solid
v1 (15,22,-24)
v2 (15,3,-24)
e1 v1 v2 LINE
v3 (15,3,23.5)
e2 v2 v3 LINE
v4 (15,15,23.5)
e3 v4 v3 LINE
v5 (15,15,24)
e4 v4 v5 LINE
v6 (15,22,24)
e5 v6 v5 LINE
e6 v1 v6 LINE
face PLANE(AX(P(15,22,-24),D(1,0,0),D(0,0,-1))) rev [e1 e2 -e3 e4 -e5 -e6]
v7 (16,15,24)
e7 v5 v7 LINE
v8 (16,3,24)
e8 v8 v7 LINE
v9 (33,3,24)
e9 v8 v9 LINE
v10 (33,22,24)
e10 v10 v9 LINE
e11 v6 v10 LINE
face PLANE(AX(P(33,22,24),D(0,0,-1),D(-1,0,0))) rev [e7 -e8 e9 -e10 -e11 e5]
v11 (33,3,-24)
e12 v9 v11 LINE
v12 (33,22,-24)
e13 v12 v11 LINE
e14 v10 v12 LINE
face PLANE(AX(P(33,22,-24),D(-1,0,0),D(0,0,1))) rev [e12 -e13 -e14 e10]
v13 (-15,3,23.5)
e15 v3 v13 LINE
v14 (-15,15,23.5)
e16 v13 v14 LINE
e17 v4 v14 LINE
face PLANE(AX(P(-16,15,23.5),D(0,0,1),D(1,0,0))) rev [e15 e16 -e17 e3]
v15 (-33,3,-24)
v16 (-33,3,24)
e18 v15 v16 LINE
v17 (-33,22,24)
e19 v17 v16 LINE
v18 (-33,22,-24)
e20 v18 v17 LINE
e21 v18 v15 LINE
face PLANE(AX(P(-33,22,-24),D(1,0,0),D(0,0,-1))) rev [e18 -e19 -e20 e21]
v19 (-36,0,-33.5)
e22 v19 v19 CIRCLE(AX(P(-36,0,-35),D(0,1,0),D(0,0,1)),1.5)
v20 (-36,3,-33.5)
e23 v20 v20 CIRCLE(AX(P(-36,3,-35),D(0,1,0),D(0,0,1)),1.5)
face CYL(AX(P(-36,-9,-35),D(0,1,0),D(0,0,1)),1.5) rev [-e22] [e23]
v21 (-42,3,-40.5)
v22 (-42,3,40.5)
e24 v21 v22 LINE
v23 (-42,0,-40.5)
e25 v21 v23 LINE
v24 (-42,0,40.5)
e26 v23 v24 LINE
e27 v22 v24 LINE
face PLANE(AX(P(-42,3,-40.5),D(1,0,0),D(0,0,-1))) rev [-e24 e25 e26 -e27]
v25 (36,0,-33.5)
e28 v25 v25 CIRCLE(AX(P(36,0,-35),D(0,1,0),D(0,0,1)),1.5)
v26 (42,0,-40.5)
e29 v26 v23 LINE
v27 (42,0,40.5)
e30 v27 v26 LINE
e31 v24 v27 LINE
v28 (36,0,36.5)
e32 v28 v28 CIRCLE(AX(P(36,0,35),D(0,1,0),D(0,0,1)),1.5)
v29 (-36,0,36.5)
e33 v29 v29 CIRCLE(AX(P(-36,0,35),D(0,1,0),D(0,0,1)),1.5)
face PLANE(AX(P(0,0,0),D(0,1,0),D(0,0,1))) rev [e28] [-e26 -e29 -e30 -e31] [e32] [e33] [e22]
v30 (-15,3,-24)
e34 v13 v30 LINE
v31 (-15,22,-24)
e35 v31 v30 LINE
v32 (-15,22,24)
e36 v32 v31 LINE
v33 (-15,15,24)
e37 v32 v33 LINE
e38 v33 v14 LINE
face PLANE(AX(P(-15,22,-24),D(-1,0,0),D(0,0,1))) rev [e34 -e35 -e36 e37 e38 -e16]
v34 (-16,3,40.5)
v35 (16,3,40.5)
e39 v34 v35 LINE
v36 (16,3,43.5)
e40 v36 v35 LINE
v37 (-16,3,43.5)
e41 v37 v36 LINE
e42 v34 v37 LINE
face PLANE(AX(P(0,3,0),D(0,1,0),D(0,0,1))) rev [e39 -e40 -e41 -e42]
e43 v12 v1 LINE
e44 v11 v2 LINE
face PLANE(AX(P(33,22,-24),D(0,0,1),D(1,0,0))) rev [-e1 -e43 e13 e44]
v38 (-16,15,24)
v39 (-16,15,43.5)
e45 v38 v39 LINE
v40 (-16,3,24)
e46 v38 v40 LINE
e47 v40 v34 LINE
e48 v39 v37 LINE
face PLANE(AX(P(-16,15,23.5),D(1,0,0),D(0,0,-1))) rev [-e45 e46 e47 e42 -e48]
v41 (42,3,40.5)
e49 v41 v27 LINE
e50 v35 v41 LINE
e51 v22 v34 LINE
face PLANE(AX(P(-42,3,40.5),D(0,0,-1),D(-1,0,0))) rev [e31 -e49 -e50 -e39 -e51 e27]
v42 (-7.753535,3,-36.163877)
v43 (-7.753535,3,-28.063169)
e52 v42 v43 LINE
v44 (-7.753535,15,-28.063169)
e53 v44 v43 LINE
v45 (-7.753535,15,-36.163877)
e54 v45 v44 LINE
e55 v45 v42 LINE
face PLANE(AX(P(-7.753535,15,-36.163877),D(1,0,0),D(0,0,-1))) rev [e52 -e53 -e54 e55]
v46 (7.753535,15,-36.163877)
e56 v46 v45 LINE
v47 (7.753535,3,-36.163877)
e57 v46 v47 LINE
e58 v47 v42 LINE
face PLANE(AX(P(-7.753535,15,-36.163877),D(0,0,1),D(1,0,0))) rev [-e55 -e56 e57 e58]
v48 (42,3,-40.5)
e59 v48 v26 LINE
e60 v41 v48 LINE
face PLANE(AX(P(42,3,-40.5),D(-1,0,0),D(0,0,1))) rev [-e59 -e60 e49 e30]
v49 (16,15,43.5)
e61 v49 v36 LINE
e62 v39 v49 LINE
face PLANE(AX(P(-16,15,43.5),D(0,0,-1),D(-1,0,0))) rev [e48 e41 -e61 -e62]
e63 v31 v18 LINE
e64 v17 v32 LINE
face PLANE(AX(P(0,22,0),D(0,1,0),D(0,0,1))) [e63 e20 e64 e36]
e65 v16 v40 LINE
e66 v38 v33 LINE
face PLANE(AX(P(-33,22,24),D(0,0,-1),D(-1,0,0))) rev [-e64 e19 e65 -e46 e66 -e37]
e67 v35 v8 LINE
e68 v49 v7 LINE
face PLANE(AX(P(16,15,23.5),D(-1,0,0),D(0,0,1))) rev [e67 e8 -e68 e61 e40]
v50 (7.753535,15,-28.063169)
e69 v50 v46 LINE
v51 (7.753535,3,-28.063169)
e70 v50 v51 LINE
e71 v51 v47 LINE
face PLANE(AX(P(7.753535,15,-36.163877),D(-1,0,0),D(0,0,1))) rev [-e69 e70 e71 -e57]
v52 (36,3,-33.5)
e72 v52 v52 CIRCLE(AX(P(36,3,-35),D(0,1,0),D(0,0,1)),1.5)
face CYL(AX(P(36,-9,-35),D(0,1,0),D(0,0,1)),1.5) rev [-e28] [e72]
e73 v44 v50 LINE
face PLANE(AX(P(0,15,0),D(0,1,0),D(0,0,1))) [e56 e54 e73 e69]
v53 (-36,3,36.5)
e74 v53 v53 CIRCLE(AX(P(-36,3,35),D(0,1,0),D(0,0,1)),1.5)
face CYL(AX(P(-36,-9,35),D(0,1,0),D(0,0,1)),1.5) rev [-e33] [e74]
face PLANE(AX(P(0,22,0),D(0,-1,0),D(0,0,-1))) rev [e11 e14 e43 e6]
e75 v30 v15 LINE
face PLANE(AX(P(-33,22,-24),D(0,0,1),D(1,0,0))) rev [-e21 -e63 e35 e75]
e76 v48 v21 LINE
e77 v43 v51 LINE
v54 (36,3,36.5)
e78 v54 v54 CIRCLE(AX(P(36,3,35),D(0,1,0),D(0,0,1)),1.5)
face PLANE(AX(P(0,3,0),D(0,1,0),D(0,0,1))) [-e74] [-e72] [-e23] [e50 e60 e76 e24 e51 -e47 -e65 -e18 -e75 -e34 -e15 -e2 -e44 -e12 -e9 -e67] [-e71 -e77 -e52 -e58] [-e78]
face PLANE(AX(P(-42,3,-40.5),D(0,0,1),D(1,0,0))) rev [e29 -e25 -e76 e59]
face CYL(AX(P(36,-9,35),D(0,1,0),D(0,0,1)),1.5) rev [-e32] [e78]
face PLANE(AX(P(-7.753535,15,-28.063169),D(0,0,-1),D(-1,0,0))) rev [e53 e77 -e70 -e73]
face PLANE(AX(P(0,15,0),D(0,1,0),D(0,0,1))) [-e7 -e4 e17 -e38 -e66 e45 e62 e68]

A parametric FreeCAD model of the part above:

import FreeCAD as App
import Part
import Sketcher
Q = App.Units.Quantity

doc = App.newDocument("Part")
body = doc.addObject("PartDesign::Body", "Body")

sketch1 = body.newObject("Sketcher::SketchObject", "Sketch")
sketch1.AttachmentSupport = (doc.getObject("XZ_Plane"), [""])
sketch1.MapMode = "FlatFace"
sketch1.addGeometry([
    Part.LineSegment(App.Vector(-42, -40.5, 0), App.Vector(-42, 40.5, 0)),
    Part.LineSegment(App.Vector(-42, 40.5, 0), App.Vector(42, 40.5, 0)),
    Part.LineSegment(App.Vector(42, 40.5, 0), App.Vector(42, -40.5, 0)),
    Part.LineSegment(App.Vector(42, -40.5, 0), App.Vector(-42, -40.5, 0)),
], False)
sketch1.addConstraint([
    Sketcher.Constraint("Coincident", 0, 2, 1, 1),
    Sketcher.Constraint("Coincident", 1, 2, 2, 1),
    Sketcher.Constraint("Coincident", 2, 2, 3, 1),
    Sketcher.Constraint("Coincident", 3, 2, 0, 1),
    Sketcher.Constraint("Vertical", 0),
    Sketcher.Constraint("Horizontal", 1),
    Sketcher.Constraint("Vertical", 2),
    Sketcher.Constraint("Horizontal", 3),
    Sketcher.Constraint("Symmetric", 0, 2, 2, 2, -1, 1),
    Sketcher.Constraint("DistanceX", 1, 1, 1, 2, Q("84 mm")),
    Sketcher.Constraint("DistanceY", 0, 1, 0, 2, Q("81 mm")),
])
pad1 = body.newObject("PartDesign::Pad", "Pad")
pad1.Profile = sketch1
pad1.Length = 3
pad1.Reversed = True

sketch2 = body.newObject("Sketcher::SketchObject", "Sketch001")
sketch2.AttachmentSupport = (doc.getObject("XZ_Plane"), [""])
sketch2.MapMode = "FlatFace"
sketch2.AttachmentOffset = App.Placement(App.Vector(0, 0, -3), App.Rotation())
sketch2.addGeometry([
    Part.LineSegment(App.Vector(-33, -24, 0), App.Vector(-33, 24, 0)),
    Part.LineSegment(App.Vector(-33, 24, 0), App.Vector(-15, 24, 0)),
    Part.LineSegment(App.Vector(-15, 24, 0), App.Vector(-15, -24, 0)),
    Part.LineSegment(App.Vector(-15, -24, 0), App.Vector(-33, -24, 0)),
    Part.LineSegment(App.Vector(15, -24, 0), App.Vector(15, 24, 0)),
    Part.LineSegment(App.Vector(15, 24, 0), App.Vector(33, 24, 0)),
    Part.LineSegment(App.Vector(33, 24, 0), App.Vector(33, -24, 0)),
    Part.LineSegment(App.Vector(33, -24, 0), App.Vector(15, -24, 0)),
], False)
sketch2.addConstraint([
    Sketcher.Constraint("Coincident", 0, 2, 1, 1),
    Sketcher.Constraint("Coincident", 1, 2, 2, 1),
    Sketcher.Constraint("Coincident", 2, 2, 3, 1),
    Sketcher.Constraint("Coincident", 3, 2, 0, 1),
    Sketcher.Constraint("Coincident", 4, 2, 5, 1),
    Sketcher.Constraint("Coincident", 5, 2, 6, 1),
    Sketcher.Constraint("Coincident", 6, 2, 7, 1),
    Sketcher.Constraint("Coincident", 7, 2, 4, 1),
    Sketcher.Constraint("Vertical", 0),
    Sketcher.Constraint("Horizontal", 1),
    Sketcher.Constraint("Vertical", 2),
    Sketcher.Constraint("Horizontal", 3),
    Sketcher.Constraint("Vertical", 4),
    Sketcher.Constraint("Horizontal", 5),
    Sketcher.Constraint("Vertical", 6),
    Sketcher.Constraint("Horizontal", 7),
    Sketcher.Constraint("Symmetric", 2, 2, 4, 2, -1, 1),
    Sketcher.Constraint("Symmetric", 0, 2, 6, 2, -1, 1),
    Sketcher.Constraint("Horizontal", 1, 2, 4, 2),
    Sketcher.Constraint("DistanceX", 1, 1, 1, 2, Q("18 mm")),
    Sketcher.Constraint("DistanceY", 0, 1, 0, 2, Q("48 mm")),
    Sketcher.Constraint("DistanceX", 0, 2, -1, 1, Q("33 mm")),
])
pad2 = body.newObject("PartDesign::Pad", "Pad001")
pad2.Profile = sketch2
pad2.Length = 19
pad2.Reversed = True

sketch3 = body.newObject("Sketcher::SketchObject", "Sketch002")
sketch3.AttachmentSupport = (doc.getObject("XZ_Plane"), [""])
sketch3.MapMode = "FlatFace"
sketch3.AttachmentOffset = App.Placement(App.Vector(0, 0, -3), App.Rotation())
sketch3.addGeometry([
    Part.LineSegment(App.Vector(-16, 23.5, 0), App.Vector(-16, 43.5, 0)),
    Part.LineSegment(App.Vector(-16, 43.5, 0), App.Vector(16, 43.5, 0)),
    Part.LineSegment(App.Vector(16, 43.5, 0), App.Vector(16, 23.5, 0)),
    Part.LineSegment(App.Vector(16, 23.5, 0), App.Vector(-16, 23.5, 0)),
    Part.LineSegment(App.Vector(-7.753535, -36.163877, 0), App.Vector(-7.753535, -28.063169, 0)),
    Part.LineSegment(App.Vector(-7.753535, -28.063169, 0), App.Vector(7.753535, -28.063169, 0)),
    Part.LineSegment(App.Vector(7.753535, -28.063169, 0), App.Vector(7.753535, -36.163877, 0)),
    Part.LineSegment(App.Vector(7.753535, -36.163877, 0), App.Vector(-7.753535, -36.163877, 0)),
], False)
sketch3.addConstraint([
    Sketcher.Constraint("Coincident", 0, 2, 1, 1),
    Sketcher.Constraint("Coincident", 1, 2, 2, 1),
    Sketcher.Constraint("Coincident", 2, 2, 3, 1),
    Sketcher.Constraint("Coincident", 3, 2, 0, 1),
    Sketcher.Constraint("Coincident", 4, 2, 5, 1),
    Sketcher.Constraint("Coincident", 5, 2, 6, 1),
    Sketcher.Constraint("Coincident", 6, 2, 7, 1),
    Sketcher.Constraint("Coincident", 7, 2, 4, 1),
    Sketcher.Constraint("Vertical", 0),
    Sketcher.Constraint("Horizontal", 1),
    Sketcher.Constraint("Vertical", 2),
    Sketcher.Constraint("Horizontal", 3),
    Sketcher.Constraint("Vertical", 4),
    Sketcher.Constraint("Horizontal", 5),
    Sketcher.Constraint("Vertical", 6),
    Sketcher.Constraint("Horizontal", 7),
    Sketcher.Constraint("DistanceX", 1, 1, 1, 2, Q("32 mm")),
    Sketcher.Constraint("DistanceY", 0, 1, 0, 2, Q("20 mm")),
    Sketcher.Constraint("DistanceX", 0, 2, -1, 1, Q("16 mm")),
    Sketcher.Constraint("DistanceY", -1, 1, 0, 2, Q("43.5 mm")),
    Sketcher.Constraint("DistanceX", 5, 1, 5, 2, Q("15.507071 mm")),
    Sketcher.Constraint("DistanceY", 4, 1, 4, 2, Q("8.100708 mm")),
    Sketcher.Constraint("DistanceY", 4, 2, -1, 1, Q("28.063169 mm")),
    Sketcher.Constraint("DistanceX", 4, 2, -1, 1, Q("7.753535 mm")),
])
pad3 = body.newObject("PartDesign::Pad", "Pad002")
pad3.Profile = sketch3
pad3.Length = 12
pad3.Reversed = True

sketch4 = body.newObject("Sketcher::SketchObject", "Sketch003")
sketch4.AttachmentSupport = (doc.getObject("XZ_Plane"), [""])
sketch4.MapMode = "FlatFace"
sketch4.AttachmentOffset = App.Placement(App.Vector(0, 0, -3), App.Rotation())
sketch4.addGeometry([
    Part.Circle(App.Vector(-36, -35, 0), App.Vector(0, 0, 1), 1.5),
    Part.Circle(App.Vector(36, -35, 0), App.Vector(0, 0, 1), 1.5),
    Part.Circle(App.Vector(36, 35, 0), App.Vector(0, 0, 1), 1.5),
    Part.Circle(App.Vector(-36, 35, 0), App.Vector(0, 0, 1), 1.5),
], False)
sketch4.addConstraint([
    Sketcher.Constraint("Equal", 0, 1),
    Sketcher.Constraint("Equal", 1, 2),
    Sketcher.Constraint("Equal", 2, 3),
    Sketcher.Constraint("Symmetric", 0, 3, 2, 3, -1, 1),
    Sketcher.Constraint("Symmetric", 1, 3, 3, 3, -1, 1),
    Sketcher.Constraint("Symmetric", 0, 3, 1, 3, -2),
    Sketcher.Constraint("Diameter", 0, Q("3 mm")),
    Sketcher.Constraint("DistanceX", 0, 3, -1, 1, Q("36 mm")),
    Sketcher.Constraint("DistanceY", 0, 3, -1, 1, Q("35 mm")),
])
pocket1 = body.newObject("PartDesign::Pocket", "Pocket")
pocket1.Profile = sketch4
pocket1.Length = 12
pocket1.Reversed = True

doc.recompute()
